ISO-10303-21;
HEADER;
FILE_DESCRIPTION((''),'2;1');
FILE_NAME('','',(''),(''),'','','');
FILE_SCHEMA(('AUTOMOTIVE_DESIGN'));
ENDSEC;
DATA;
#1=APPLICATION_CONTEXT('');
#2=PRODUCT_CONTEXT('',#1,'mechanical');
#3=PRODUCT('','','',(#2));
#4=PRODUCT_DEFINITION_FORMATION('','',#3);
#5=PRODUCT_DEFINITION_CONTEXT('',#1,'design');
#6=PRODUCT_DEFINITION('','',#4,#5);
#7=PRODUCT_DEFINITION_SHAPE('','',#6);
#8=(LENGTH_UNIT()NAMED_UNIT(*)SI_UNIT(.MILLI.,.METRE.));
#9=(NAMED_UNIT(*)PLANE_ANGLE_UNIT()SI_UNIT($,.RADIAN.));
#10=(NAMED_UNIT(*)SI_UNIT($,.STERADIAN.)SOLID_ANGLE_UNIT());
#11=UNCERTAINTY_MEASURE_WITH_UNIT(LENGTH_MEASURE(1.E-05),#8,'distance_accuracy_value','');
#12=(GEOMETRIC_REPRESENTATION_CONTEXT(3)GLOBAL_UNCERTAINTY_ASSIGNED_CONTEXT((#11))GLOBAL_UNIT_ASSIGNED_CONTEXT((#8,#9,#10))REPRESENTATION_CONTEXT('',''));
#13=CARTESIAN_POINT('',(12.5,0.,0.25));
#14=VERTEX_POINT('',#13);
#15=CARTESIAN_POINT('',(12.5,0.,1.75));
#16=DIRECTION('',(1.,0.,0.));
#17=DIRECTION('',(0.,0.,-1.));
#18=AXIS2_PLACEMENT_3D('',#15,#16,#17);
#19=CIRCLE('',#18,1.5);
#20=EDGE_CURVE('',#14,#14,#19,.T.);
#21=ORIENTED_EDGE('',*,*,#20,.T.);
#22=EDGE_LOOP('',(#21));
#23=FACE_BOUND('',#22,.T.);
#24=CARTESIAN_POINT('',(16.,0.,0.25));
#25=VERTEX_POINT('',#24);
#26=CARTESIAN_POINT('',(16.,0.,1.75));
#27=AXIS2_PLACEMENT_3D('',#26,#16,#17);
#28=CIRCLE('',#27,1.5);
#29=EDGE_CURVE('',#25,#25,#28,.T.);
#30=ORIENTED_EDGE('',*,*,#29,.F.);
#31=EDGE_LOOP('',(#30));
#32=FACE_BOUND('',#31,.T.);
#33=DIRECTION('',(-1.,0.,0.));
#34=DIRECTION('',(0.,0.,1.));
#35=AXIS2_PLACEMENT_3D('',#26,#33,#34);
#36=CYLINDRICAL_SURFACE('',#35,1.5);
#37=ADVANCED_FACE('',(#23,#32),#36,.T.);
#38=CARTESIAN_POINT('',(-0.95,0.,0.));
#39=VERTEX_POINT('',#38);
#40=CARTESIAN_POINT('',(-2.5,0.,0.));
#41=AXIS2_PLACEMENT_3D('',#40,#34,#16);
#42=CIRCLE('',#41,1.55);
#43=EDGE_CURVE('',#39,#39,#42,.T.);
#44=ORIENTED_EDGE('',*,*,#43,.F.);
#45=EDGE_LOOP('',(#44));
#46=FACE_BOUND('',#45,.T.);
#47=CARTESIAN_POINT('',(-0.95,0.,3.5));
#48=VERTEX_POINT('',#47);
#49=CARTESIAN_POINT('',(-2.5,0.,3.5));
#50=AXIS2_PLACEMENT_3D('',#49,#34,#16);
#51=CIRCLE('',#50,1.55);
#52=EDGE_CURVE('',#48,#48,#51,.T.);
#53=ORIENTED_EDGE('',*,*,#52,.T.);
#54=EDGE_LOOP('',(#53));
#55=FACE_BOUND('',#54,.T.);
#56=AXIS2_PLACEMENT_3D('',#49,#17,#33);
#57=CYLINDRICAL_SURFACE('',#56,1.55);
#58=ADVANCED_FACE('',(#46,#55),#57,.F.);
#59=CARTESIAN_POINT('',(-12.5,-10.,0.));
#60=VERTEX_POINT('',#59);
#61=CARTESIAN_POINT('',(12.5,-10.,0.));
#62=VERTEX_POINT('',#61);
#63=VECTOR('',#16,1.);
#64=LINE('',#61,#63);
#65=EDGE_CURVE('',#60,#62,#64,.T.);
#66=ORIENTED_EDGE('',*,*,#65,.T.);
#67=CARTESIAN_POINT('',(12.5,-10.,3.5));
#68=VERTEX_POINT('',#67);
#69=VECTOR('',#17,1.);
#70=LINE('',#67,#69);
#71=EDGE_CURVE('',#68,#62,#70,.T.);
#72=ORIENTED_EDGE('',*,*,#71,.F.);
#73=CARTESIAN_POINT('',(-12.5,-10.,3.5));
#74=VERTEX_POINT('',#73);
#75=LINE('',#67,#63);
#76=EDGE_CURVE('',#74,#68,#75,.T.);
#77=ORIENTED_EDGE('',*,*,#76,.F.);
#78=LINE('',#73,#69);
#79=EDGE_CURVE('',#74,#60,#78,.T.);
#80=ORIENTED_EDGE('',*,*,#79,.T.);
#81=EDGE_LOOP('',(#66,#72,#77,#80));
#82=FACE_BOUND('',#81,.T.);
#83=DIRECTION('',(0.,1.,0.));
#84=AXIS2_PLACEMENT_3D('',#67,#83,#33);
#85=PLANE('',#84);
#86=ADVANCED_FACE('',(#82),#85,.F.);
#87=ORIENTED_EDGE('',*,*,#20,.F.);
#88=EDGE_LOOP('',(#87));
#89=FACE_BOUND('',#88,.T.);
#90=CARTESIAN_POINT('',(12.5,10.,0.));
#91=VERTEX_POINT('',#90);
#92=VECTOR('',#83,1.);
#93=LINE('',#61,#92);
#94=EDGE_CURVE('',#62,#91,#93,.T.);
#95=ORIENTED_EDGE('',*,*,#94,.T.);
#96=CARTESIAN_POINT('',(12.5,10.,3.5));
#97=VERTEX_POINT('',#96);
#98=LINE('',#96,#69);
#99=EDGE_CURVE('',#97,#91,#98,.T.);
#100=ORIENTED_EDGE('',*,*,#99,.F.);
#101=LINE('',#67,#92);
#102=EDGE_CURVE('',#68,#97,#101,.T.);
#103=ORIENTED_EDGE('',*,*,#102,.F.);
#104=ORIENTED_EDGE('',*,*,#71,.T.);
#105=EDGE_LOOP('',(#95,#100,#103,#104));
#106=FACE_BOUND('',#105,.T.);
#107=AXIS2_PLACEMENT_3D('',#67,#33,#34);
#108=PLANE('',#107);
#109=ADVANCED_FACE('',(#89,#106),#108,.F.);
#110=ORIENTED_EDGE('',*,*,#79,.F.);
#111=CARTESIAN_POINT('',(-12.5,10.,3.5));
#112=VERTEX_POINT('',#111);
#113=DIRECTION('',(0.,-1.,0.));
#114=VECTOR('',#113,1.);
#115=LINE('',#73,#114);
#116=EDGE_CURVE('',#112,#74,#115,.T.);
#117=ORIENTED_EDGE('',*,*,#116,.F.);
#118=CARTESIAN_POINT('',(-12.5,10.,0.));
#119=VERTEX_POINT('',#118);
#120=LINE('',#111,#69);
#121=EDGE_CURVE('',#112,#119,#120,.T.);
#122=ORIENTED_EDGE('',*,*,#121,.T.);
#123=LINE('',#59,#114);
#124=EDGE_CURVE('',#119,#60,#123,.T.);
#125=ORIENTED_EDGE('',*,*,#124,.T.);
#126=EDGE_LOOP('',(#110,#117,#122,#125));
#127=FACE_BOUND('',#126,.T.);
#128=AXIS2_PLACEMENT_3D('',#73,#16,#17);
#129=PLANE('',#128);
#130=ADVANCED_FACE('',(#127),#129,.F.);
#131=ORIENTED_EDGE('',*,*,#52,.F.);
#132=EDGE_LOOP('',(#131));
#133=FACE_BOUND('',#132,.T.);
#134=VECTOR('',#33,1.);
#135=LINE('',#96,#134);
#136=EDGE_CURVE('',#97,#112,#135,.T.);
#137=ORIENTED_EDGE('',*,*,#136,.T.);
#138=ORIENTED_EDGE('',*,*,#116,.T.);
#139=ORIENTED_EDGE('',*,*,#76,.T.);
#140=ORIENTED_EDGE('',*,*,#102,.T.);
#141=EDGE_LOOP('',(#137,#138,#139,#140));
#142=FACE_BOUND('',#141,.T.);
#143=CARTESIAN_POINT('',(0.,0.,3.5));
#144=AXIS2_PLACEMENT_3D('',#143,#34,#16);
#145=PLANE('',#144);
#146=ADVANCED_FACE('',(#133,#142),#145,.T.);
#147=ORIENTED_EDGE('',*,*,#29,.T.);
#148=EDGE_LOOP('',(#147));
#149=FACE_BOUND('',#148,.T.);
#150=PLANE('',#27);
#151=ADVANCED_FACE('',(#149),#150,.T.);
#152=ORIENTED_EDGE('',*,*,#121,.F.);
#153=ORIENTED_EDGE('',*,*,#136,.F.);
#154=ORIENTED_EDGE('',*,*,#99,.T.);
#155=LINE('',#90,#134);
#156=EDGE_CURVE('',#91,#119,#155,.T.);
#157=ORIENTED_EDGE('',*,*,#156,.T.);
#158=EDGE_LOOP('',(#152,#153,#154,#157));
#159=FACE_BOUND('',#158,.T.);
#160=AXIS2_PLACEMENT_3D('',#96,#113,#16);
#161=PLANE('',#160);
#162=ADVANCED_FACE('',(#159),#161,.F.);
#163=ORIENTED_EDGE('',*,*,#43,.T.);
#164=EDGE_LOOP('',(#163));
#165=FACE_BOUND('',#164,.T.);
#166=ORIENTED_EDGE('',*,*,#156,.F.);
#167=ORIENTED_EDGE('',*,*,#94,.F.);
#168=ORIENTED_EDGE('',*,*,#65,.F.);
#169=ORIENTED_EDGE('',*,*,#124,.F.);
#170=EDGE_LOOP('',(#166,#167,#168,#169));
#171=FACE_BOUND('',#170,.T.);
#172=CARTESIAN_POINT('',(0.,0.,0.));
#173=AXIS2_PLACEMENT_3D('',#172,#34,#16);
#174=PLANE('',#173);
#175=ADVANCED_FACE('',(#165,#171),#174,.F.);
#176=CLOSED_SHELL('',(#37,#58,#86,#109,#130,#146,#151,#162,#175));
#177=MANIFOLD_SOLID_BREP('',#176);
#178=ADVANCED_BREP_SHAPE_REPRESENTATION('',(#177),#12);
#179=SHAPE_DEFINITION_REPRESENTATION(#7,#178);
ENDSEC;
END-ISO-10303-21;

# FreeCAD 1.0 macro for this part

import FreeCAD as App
import Part
import Sketcher

V = App.Vector
Q = App.Units.Quantity

doc = App.newDocument("Part")
body = doc.addObject("PartDesign::Body", "Body")

# Sketch on XY plane
sketch1 = body.newObject("Sketcher::SketchObject", "Sketch")
sketch1.AttachmentSupport = (doc.getObject("XY_Plane"), [""])
sketch1.MapMode = "FlatFace"
sketch1.addGeometry([
    Part.LineSegment(V(-12.5, 10, 0), V(-12.5, -10, 0)),  # 0
    Part.LineSegment(V(-12.5, -10, 0), V(12.5, -10, 0)),  # 1
    Part.LineSegment(V(12.5, -10, 0), V(12.5, 10, 0)),  # 2
    Part.LineSegment(V(12.5, 10, 0), V(-12.5, 10, 0)),  # 3
    Part.Circle(V(-2.5, 0, 0), V(0, 0, 1), 1.6),  # 4
], False)
sketch1.addConstraint([
    Sketcher.Constraint("Coincident", 0, 2, 1, 1),
    Sketcher.Constraint("Coincident", 1, 2, 2, 1),
    Sketcher.Constraint("Coincident", 2, 2, 3, 1),
    Sketcher.Constraint("Coincident", 3, 2, 0, 1),
    Sketcher.Constraint("Vertical", 0),
    Sketcher.Constraint("Horizontal", 1),
    Sketcher.Constraint("Vertical", 2),
    Sketcher.Constraint("Horizontal", 3),
    Sketcher.Constraint("Symmetric", 0, 2, 2, 2, -1, 1),
    Sketcher.Constraint("PointOnObject", 4, 3, -1),
    Sketcher.Constraint("Diameter", 4, Q("3.1 mm")),
    Sketcher.Constraint("DistanceX", 1, 1, 1, 2, Q("25 mm")),
    Sketcher.Constraint("DistanceY", 0, 2, 0, 1, Q("20 mm")),
    Sketcher.Constraint("DistanceX", 0, 2, 4, 3, Q("10 mm")),
])
pad1 = body.newObject("PartDesign::Pad", "Pad")
pad1.Profile = sketch1
pad1.Length = 3.5

# Sketch on YZ plane
sketch2 = body.newObject("Sketcher::SketchObject", "Sketch001")
sketch2.AttachmentSupport = (doc.getObject("YZ_Plane"), [""])
sketch2.MapMode = "FlatFace"
sketch2.AttachmentOffset = App.Placement(V(0, 0, 12.5), App.Rotation())
sketch2.addGeometry(Part.Circle(V(0, 1.8, 0), V(0, 0, 1), 1.5), False)
sketch2.addConstraint([
    Sketcher.Constraint("PointOnObject", 0, 3, -2),
    Sketcher.Constraint("Diameter", 0, Q("3 mm")),
    Sketcher.Constraint("DistanceY", -1, 1, 0, 3, Q("1.75 mm")),
])
pad2 = body.newObject("PartDesign::Pad", "Pad001")
pad2.Profile = sketch2
pad2.Length = 3.5

doc.recompute()
